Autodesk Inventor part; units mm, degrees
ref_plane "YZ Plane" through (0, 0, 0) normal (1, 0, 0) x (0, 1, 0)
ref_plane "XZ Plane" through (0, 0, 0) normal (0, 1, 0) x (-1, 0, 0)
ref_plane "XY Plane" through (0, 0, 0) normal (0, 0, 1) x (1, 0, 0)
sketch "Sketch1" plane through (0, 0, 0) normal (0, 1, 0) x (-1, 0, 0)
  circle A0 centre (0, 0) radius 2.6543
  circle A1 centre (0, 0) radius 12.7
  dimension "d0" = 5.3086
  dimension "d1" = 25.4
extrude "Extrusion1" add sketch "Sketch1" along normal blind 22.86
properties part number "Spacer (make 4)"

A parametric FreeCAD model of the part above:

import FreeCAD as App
import Part
import Sketcher

V = App.Vector
Q = App.Units.Quantity

doc = App.newDocument("Part")
body = doc.addObject("PartDesign::Body", "Body")

# Sketch on XZ plane
sketch1 = body.newObject("Sketcher::SketchObject", "Sketch")
sketch1.AttachmentSupport = (doc.getObject("XZ_Plane"), [""])
sketch1.MapMode = "FlatFace"
sketch1.addGeometry([
    Part.Circle(V(0, 0, 0), V(0, 0, 1), 12.7),
    Part.Circle(V(0, 0, 0), V(0, 0, 1), 2.7),
], False)
sketch1.addConstraint([
    Sketcher.Constraint("Coincident", 0, 3, -1, 1),
    Sketcher.Constraint("Coincident", 1, 3, -1, 1),
    Sketcher.Constraint("Diameter", 0, Q("1 in")),
    Sketcher.Constraint("Diameter", 1, Q("0.209 in")),
])
pad1 = body.newObject("PartDesign::Pad", "Pad")
pad1.Profile = sketch1
pad1.Length = Q("0.9 in")
pad1.Reversed = True

doc.recompute()
